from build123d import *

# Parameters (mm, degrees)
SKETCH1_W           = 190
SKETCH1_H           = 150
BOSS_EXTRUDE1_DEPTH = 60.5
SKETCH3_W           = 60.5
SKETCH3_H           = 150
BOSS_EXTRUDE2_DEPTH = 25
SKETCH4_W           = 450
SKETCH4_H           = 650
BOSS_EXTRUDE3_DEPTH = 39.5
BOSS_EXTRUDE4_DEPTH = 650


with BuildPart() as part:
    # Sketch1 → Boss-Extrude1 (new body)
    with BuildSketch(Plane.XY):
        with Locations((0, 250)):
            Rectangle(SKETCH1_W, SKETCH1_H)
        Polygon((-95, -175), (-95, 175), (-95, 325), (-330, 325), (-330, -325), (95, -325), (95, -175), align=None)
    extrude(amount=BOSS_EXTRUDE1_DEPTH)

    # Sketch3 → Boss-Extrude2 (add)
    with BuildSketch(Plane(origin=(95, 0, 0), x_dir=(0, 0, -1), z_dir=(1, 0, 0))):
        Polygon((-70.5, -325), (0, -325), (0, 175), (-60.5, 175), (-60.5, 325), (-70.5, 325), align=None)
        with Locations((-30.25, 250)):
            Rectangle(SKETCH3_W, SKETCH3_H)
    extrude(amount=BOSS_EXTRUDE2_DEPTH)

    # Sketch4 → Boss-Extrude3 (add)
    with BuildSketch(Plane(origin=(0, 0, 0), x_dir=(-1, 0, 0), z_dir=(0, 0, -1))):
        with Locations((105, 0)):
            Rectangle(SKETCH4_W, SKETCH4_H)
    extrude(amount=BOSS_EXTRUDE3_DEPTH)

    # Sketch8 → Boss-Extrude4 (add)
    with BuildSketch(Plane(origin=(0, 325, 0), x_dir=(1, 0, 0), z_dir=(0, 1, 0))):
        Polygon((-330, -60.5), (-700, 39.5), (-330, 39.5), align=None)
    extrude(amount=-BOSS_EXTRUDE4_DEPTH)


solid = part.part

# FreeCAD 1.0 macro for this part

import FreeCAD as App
import Part
import Sketcher
Q = App.Units.Quantity


def add_polygon(sketch, points):
    """Adds a closed chain of lines whose ends are joined by coincident constraints."""
    first, n = sketch.GeometryCount, len(points)
    for a, b in zip(points, points[1:] + points[:1]):
        sketch.addGeometry(Part.LineSegment(App.Vector(*a, 0), App.Vector(*b, 0)), False)
    for i in range(n):
        sketch.addConstraint(Sketcher.Constraint("Coincident", first + i, 2, first + (i + 1) % n, 1))

doc = App.newDocument("Part")
body = doc.addObject("PartDesign::Body", "Body")

# Sketch on XY plane
sketch1 = body.newObject("Sketcher::SketchObject", "Sketch")
sketch1.AttachmentSupport = (doc.getObject("XY_Plane"), [""])
sketch1.MapMode = "FlatFace"
add_polygon(sketch1, [(-95, 175), (95, 175), (95, 325), (-330, 325), (-330, -325), (95, -325), (95, -175), (-95, -175)])  # lines 0-7
sketch1.addConstraint([
    Sketcher.Constraint("Horizontal", 0),
    Sketcher.Constraint("Vertical", 1),
    Sketcher.Constraint("Horizontal", 2),
    Sketcher.Constraint("Vertical", 3),
    Sketcher.Constraint("Horizontal", 4),
    Sketcher.Constraint("Vertical", 5),
    Sketcher.Constraint("Horizontal", 6),
    Sketcher.Constraint("Vertical", 7),
    Sketcher.Constraint("Symmetric", 0, 2, 6, 2, -1, 1),
    Sketcher.Constraint("Symmetric", 1, 2, 4, 2, -1),
    Sketcher.Constraint("DistanceX", 0, 1, 0, 2, Q("190 mm")),
    Sketcher.Constraint("DistanceX", 2, 2, 2, 1, Q("425 mm")),
    Sketcher.Constraint("DistanceY", 1, 1, 1, 2, Q("150 mm")),
    Sketcher.Constraint("DistanceY", 3, 2, 3, 1, Q("650 mm")),
])
pad1 = body.newObject("PartDesign::Pad", "Pad")
pad1.Profile = sketch1
pad1.Length = 60.5

# Sketch on YZ plane
sketch2 = body.newObject("Sketcher::SketchObject", "Sketch001")
sketch2.AttachmentSupport = (doc.getObject("YZ_Plane"), [""])
sketch2.MapMode = "FlatFace"
sketch2.AttachmentOffset = App.Placement(App.Vector(0, 0, 95), App.Rotation())
add_polygon(sketch2, [(-325, 70), (-325, 0), (325, 0), (325, 70)])  # lines 0-3
sketch2.addConstraint([
    Sketcher.Constraint("Vertical", 0),
    Sketcher.Constraint("Horizontal", 1),
    Sketcher.Constraint("Vertical", 2),
    Sketcher.Constraint("Horizontal", 3),
    Sketcher.Constraint("Symmetric", 0, 2, 1, 2, -1, 1),
    Sketcher.Constraint("DistanceX", 1, 1, 1, 2, Q("650 mm")),
    Sketcher.Constraint("DistanceY", 0, 2, 0, 1, Q("70.5 mm")),
])
pad2 = body.newObject("PartDesign::Pad", "Pad001")
pad2.Profile = sketch2
pad2.Length = 25

# Sketch on XY plane
sketch3 = body.newObject("Sketcher::SketchObject", "Sketch002")
sketch3.AttachmentSupport = (doc.getObject("XY_Plane"), [""])
sketch3.MapMode = "FlatFace"
add_polygon(sketch3, [(120, 325), (120, -325), (-330, -325), (-330, 325)])  # lines 0-3
sketch3.addConstraint([
    Sketcher.Constraint("Vertical", 0),
    Sketcher.Constraint("Horizontal", 1),
    Sketcher.Constraint("Vertical", 2),
    Sketcher.Constraint("Horizontal", 3),
    Sketcher.Constraint("DistanceX", 1, 2, 1, 1, Q("450 mm")),
    Sketcher.Constraint("DistanceY", 0, 2, 0, 1, Q("650 mm")),
    Sketcher.Constraint("DistanceX", -1, 1, 0, 2, Q("120 mm")),
    Sketcher.Constraint("DistanceY", 0, 2, -1, 1, Q("325 mm")),
])
pad3 = body.newObject("PartDesign::Pad", "Pad002")
pad3.Profile = sketch3
pad3.Length = 39.5
pad3.Reversed = True

# Sketch on XZ plane
sketch4 = body.newObject("Sketcher::SketchObject", "Sketch003")
sketch4.AttachmentSupport = (doc.getObject("XZ_Plane"), [""])
sketch4.MapMode = "FlatFace"
sketch4.AttachmentOffset = App.Placement(App.Vector(0, 0, -325), App.Rotation())
add_polygon(sketch4, [(-700, -40), (-330, 60), (-330, -40)])  # lines 0-2
sketch4.addConstraint([
    Sketcher.Constraint("Vertical", 1),
    Sketcher.Constraint("Horizontal", 2),
    Sketcher.Constraint("DistanceX", 2, 2, 2, 1, Q("370 mm")),
    Sketcher.Constraint("DistanceY", 1, 2, 1, 1, Q("100 mm")),
    Sketcher.Constraint("DistanceX", 0, 2, -1, 1, Q("330 mm")),
    Sketcher.Constraint("DistanceY", -1, 1, 0, 2, Q("60.5 mm")),
])
pad4 = body.newObject("PartDesign::Pad", "Pad003")
pad4.Profile = sketch4
pad4.Length = 650

doc.recompute()
